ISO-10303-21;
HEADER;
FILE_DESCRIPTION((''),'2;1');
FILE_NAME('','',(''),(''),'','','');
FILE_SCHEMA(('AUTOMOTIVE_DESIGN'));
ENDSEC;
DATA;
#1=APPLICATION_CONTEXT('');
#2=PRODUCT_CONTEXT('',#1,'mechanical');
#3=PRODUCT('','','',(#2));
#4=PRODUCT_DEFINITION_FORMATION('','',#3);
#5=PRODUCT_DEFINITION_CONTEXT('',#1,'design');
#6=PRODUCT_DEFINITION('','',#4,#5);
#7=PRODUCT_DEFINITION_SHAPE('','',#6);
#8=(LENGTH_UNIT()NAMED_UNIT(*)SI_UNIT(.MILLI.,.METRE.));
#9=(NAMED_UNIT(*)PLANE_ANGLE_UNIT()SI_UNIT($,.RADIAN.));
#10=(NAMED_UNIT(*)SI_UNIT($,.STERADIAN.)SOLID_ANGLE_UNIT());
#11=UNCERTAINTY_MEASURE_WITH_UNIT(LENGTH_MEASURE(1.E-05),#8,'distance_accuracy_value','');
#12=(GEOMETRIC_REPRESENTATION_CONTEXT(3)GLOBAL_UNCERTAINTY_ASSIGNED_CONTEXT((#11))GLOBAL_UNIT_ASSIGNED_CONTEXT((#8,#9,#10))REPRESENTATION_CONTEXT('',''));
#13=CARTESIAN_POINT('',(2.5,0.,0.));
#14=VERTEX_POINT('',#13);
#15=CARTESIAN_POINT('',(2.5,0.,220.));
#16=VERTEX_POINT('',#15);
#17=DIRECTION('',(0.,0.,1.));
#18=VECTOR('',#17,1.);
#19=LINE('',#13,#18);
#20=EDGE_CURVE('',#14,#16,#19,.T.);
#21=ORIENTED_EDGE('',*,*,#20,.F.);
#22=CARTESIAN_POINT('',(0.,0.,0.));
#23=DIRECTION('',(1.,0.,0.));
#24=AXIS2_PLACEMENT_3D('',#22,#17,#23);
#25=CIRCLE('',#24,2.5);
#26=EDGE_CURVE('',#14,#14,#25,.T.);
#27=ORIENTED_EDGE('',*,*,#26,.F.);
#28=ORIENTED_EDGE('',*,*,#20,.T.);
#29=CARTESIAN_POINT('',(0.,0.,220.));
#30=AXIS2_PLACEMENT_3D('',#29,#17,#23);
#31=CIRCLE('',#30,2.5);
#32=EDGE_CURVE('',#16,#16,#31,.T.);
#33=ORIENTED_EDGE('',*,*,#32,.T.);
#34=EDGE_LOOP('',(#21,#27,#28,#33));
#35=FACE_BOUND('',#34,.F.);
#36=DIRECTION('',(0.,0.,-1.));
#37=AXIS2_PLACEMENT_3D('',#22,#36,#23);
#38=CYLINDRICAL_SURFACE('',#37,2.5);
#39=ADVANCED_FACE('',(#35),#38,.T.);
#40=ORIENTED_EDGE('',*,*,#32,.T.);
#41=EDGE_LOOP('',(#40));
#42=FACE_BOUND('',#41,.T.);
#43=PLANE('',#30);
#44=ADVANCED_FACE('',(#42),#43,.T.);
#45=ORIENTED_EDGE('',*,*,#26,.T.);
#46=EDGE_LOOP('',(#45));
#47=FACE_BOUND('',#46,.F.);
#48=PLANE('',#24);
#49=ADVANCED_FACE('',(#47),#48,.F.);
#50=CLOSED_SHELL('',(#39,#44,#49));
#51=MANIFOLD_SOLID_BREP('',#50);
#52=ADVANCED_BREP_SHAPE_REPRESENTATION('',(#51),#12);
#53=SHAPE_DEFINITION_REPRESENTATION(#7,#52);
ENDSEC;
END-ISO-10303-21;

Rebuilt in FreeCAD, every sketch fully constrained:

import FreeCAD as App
import Part
import Sketcher
from FreeCAD import Vector
Q = App.Units.Quantity

doc = App.newDocument("Part")
body = doc.addObject("PartDesign::Body", "Body")

# Sketch on XY plane
sketch1 = body.newObject("Sketcher::SketchObject", "Sketch")
sketch1.AttachmentSupport = (doc.getObject("XY_Plane"), [""])
sketch1.MapMode = "FlatFace"
sketch1.addGeometry(Part.Circle(Vector(0, 0, 0), Vector(0, 0, 1), 2.5), False)
sketch1.addConstraint(Sketcher.Constraint("Coincident", 0, 3, -1, 1))
sketch1.addConstraint(Sketcher.Constraint("Diameter", 0, Q("5 mm")))
pad1 = body.newObject("PartDesign::Pad", "Pad")
pad1.Profile = sketch1
pad1.Length = 220

doc.recompute()
